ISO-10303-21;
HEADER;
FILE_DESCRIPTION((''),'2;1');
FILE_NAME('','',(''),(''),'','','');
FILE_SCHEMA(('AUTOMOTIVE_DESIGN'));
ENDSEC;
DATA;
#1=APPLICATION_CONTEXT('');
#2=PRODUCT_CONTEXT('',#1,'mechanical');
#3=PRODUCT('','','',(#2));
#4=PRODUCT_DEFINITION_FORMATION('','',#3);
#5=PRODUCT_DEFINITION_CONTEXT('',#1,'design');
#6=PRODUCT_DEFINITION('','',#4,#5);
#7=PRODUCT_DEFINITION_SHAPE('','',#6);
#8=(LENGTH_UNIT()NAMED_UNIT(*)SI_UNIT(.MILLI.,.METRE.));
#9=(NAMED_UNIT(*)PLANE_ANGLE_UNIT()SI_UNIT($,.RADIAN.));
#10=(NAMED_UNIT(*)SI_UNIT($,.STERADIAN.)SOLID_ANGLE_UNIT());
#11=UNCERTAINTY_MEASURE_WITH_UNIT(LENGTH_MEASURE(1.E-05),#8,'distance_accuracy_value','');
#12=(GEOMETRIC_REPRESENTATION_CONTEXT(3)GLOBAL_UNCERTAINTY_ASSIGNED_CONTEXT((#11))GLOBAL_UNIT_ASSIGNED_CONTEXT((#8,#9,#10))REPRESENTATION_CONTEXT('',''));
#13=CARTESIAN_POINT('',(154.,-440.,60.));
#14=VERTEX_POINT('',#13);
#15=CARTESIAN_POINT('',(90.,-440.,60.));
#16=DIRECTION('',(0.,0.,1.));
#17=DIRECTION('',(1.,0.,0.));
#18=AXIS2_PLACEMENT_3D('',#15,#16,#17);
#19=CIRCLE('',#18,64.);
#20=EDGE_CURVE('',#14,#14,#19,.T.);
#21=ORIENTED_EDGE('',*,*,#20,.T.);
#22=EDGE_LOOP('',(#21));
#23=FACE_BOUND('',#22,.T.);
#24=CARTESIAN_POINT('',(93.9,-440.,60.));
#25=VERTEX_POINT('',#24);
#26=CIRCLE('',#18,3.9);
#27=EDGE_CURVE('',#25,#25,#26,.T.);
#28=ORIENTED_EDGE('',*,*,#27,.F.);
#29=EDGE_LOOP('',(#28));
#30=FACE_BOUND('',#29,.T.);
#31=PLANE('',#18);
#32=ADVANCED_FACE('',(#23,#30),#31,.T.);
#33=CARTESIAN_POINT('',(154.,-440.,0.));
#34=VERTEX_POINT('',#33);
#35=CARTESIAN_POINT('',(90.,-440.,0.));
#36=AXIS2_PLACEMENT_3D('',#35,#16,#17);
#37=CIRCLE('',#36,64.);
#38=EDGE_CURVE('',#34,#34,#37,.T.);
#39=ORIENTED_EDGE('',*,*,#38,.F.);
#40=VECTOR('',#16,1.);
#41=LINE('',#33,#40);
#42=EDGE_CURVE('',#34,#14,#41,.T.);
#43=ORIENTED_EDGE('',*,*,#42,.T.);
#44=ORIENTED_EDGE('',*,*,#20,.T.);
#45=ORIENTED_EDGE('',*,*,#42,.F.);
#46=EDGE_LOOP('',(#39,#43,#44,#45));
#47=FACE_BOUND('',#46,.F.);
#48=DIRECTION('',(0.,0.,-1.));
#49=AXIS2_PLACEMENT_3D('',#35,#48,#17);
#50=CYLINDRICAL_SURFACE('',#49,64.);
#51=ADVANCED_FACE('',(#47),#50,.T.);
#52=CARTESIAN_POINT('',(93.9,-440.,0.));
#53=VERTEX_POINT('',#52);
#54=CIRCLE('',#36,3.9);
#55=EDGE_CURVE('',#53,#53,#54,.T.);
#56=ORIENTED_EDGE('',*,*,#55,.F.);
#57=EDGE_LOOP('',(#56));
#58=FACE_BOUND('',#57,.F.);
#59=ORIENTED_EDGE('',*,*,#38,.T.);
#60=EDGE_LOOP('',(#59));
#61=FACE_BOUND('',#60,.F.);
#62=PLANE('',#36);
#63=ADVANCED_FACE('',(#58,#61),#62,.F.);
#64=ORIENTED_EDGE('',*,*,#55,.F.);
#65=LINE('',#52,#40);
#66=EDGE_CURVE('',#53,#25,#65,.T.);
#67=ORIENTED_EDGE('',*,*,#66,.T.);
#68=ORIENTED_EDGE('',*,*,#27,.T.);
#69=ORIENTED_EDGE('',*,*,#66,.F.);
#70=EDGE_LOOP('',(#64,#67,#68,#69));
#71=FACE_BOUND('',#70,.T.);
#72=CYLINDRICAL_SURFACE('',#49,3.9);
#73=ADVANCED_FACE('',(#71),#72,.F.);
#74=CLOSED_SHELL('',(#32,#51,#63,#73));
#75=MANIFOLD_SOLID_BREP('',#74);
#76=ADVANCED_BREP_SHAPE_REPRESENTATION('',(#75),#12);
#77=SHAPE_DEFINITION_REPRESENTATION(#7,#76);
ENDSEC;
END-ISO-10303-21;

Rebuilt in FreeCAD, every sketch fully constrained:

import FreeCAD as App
import Part
import Sketcher
from FreeCAD import Vector

doc = App.newDocument("Part")
body = doc.addObject("PartDesign::Body", "Body")

# Sketch on XY plane
sketch1 = body.newObject("Sketcher::SketchObject", "Sketch")
sketch1.AttachmentSupport = (doc.getObject("XY_Plane"), [""])
sketch1.MapMode = "FlatFace"
sketch1.addGeometry(Part.Circle(Vector(0, 0, 0), Vector(0, 0, 1), 3.9), False)
sketch1.addConstraint([
    Sketcher.Constraint("Coincident", 0, 3, -1, 1),
    Sketcher.Constraint("Diameter", 0, 7.8),
])
pad1 = body.newObject("PartDesign::Pad", "Pad")
pad1.Profile = sketch1
pad1.Length = 60
body2 = doc.addObject("PartDesign::Body", "Body001")

# Sketch on XY plane
sketch2 = body2.newObject("Sketcher::SketchObject", "Sketch001")
sketch2.AttachmentSupport = (doc.getObject("XY_Plane001"), [""])
sketch2.MapMode = "FlatFace"
sketch2.addGeometry(Part.Circle(Vector(0, 0, 0), Vector(0, 0, 1), 64), False)
sketch2.addConstraint([
    Sketcher.Constraint("Coincident", 0, 3, -1, 1),
    Sketcher.Constraint("Diameter", 0, 128.0),
])
pad2 = body2.newObject("PartDesign::Pad", "Pad001")
pad2.Profile = sketch2
pad2.Length = 60
doc.recompute()

boolean = body2.newObject("PartDesign::Boolean", "Boolean")
boolean.Type = "Cut"
boolean.addObjects([body])
body3 = doc.addObject("PartDesign::Body", "Body002")
doc.recompute()

body2.Placement = App.Placement(Vector(90, -440, 0), App.Rotation(Vector(0, 0, 1), 0))
boolean2 = body3.newObject("PartDesign::Boolean", "Boolean001")
boolean2.Type = "Fuse"
boolean2.addObjects([body2])

doc.recompute()
